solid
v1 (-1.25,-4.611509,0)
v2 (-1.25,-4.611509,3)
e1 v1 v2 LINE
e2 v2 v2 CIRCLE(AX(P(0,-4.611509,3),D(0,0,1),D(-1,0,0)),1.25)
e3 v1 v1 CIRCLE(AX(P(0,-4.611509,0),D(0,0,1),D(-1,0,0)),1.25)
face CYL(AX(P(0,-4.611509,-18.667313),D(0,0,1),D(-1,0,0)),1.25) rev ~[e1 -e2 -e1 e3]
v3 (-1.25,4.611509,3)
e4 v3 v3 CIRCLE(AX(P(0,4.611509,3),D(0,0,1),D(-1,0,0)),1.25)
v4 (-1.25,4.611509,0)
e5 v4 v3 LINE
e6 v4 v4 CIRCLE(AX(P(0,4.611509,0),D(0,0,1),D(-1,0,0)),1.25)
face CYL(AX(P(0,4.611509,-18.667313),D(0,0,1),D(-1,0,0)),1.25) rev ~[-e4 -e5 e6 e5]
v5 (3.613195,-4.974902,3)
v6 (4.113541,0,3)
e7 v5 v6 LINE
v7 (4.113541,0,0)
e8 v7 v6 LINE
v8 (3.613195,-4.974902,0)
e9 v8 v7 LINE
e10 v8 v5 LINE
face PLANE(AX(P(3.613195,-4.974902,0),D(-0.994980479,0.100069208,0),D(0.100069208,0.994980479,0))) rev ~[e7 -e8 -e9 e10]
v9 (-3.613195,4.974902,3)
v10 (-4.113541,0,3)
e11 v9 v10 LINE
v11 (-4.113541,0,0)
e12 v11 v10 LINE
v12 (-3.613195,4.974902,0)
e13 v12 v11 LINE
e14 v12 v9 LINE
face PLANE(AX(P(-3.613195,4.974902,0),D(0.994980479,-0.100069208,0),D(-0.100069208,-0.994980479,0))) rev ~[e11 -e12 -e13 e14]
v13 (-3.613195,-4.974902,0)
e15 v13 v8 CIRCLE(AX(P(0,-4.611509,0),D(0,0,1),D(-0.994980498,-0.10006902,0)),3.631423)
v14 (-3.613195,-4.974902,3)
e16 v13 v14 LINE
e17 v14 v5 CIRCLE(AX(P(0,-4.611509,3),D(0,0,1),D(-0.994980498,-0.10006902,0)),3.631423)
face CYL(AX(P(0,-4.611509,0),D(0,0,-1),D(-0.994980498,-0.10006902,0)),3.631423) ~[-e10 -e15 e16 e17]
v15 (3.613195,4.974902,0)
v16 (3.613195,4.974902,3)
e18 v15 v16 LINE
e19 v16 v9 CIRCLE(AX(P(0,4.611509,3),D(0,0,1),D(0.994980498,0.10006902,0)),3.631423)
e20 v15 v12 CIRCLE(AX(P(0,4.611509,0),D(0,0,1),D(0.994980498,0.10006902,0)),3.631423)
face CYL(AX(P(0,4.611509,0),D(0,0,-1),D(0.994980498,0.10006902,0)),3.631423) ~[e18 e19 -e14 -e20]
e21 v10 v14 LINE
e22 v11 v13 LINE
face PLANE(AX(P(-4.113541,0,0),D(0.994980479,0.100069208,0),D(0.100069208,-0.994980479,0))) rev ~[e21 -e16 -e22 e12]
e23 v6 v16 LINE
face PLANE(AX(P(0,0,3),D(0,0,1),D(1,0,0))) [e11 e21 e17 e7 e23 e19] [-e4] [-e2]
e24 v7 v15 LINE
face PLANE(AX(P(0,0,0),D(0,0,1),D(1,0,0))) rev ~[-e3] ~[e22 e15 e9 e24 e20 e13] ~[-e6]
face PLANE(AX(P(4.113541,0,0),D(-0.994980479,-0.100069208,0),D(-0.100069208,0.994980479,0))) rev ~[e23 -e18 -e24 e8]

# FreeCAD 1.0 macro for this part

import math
import FreeCAD as App
import Part
import Sketcher

V = App.Vector

doc = App.newDocument("Part")
body = doc.addObject("PartDesign::Body", "Body")

# Sketch on XY plane
sketch1 = body.newObject("Sketcher::SketchObject", "Sketch")
sketch1.AttachmentSupport = (doc.getObject("XY_Plane"), [""])
sketch1.MapMode = "FlatFace"
sketch1.addGeometry(Part.LineSegment(V(-3.6, 5, 0), V(-4.1, 0, 0)), False)
sketch1.addGeometry(Part.LineSegment(V(-4.1, 0, 0), V(-3.6, -5, 0)), False)
sketch1.addGeometry(Part.ArcOfCircle(Part.Circle(V(0, -4.6, 0), V(0, 0, 1), 3.6), math.radians(-174), math.radians(-6)), False)
sketch1.addGeometry(Part.LineSegment(V(3.6, -5, 0), V(4.1, 0, 0)), False)
sketch1.addGeometry(Part.LineSegment(V(4.1, 0, 0), V(3.6, 5, 0)), False)
sketch1.addGeometry(Part.ArcOfCircle(Part.Circle(V(0, 4.6, 0), V(0, 0, 1), 3.6), math.radians(6), math.radians(174)), False)
sketch1.addConstraint(Sketcher.Constraint("Coincident", 0, 2, 1, 1))
sketch1.addConstraint(Sketcher.Constraint("Tangent", 1, 2, 2, 1))
sketch1.addConstraint(Sketcher.Constraint("Tangent", 2, 2, 3, 1))
sketch1.addConstraint(Sketcher.Constraint("Coincident", 3, 2, 4, 1))
sketch1.addConstraint(Sketcher.Constraint("Tangent", 4, 2, 5, 1))
sketch1.addConstraint(Sketcher.Constraint("Tangent", 5, 2, 0, 1))
sketch1.addConstraint(Sketcher.Constraint("Equal", 2, 5))
sketch1.addConstraint(Sketcher.Constraint("Symmetric", 2, 3, 5, 3, -1, 1))
sketch1.addConstraint(Sketcher.Constraint("Symmetric", 0, 2, 3, 2, -1, 1))
sketch1.addConstraint(Sketcher.Constraint("Symmetric", 1, 2, 2, 2, -2))
sketch1.addConstraint(Sketcher.Constraint("Distance", 0, 5.0))
sketch1.addConstraint(Sketcher.Constraint("Radius", 2, 3.631423))
sketch1.addConstraint(Sketcher.Constraint("DistanceY", 2, 2, -1, 1, 4.974902))
pad1 = body.newObject("PartDesign::Pad", "Pad")
pad1.Profile = sketch1
pad1.Length = 3

# Sketch on XY plane
sketch2 = body.newObject("Sketcher::SketchObject", "Sketch001")
sketch2.AttachmentSupport = (doc.getObject("XY_Plane"), [""])
sketch2.MapMode = "FlatFace"
sketch2.addGeometry(Part.Circle(V(0, -4.6, 0), V(0, 0, 1), 1.2), False)
sketch2.addConstraint(Sketcher.Constraint("PointOnObject", 0, 3, -2))
sketch2.addConstraint(Sketcher.Constraint("Diameter", 0, 2.5))
sketch2.addConstraint(Sketcher.Constraint("DistanceY", 0, 3, -1, 1, 4.611509))
doc.recompute()
hole = body.newObject("PartDesign::Hole", "Hole")
hole.Profile = sketch2
hole.ThreadType = "None"
hole.Diameter = 2.5
hole.DepthType = "ThroughAll"
hole.Reversed = True

# Sketch on XY plane
sketch3 = body.newObject("Sketcher::SketchObject", "Sketch002")
sketch3.AttachmentSupport = (doc.getObject("XY_Plane"), [""])
sketch3.MapMode = "FlatFace"
sketch3.addGeometry(Part.Circle(V(0, 4.6, 0), V(0, 0, 1), 1.2), False)
sketch3.addConstraint(Sketcher.Constraint("PointOnObject", 0, 3, -2))
sketch3.addConstraint(Sketcher.Constraint("Diameter", 0, 2.5))
sketch3.addConstraint(Sketcher.Constraint("DistanceY", -1, 1, 0, 3, 4.611509))
doc.recompute()
hole2 = body.newObject("PartDesign::Hole", "Hole001")
hole2.Profile = sketch3
hole2.ThreadType = "None"
hole2.Diameter = 2.5
hole2.DepthType = "ThroughAll"
hole2.Reversed = True

doc.recompute()
